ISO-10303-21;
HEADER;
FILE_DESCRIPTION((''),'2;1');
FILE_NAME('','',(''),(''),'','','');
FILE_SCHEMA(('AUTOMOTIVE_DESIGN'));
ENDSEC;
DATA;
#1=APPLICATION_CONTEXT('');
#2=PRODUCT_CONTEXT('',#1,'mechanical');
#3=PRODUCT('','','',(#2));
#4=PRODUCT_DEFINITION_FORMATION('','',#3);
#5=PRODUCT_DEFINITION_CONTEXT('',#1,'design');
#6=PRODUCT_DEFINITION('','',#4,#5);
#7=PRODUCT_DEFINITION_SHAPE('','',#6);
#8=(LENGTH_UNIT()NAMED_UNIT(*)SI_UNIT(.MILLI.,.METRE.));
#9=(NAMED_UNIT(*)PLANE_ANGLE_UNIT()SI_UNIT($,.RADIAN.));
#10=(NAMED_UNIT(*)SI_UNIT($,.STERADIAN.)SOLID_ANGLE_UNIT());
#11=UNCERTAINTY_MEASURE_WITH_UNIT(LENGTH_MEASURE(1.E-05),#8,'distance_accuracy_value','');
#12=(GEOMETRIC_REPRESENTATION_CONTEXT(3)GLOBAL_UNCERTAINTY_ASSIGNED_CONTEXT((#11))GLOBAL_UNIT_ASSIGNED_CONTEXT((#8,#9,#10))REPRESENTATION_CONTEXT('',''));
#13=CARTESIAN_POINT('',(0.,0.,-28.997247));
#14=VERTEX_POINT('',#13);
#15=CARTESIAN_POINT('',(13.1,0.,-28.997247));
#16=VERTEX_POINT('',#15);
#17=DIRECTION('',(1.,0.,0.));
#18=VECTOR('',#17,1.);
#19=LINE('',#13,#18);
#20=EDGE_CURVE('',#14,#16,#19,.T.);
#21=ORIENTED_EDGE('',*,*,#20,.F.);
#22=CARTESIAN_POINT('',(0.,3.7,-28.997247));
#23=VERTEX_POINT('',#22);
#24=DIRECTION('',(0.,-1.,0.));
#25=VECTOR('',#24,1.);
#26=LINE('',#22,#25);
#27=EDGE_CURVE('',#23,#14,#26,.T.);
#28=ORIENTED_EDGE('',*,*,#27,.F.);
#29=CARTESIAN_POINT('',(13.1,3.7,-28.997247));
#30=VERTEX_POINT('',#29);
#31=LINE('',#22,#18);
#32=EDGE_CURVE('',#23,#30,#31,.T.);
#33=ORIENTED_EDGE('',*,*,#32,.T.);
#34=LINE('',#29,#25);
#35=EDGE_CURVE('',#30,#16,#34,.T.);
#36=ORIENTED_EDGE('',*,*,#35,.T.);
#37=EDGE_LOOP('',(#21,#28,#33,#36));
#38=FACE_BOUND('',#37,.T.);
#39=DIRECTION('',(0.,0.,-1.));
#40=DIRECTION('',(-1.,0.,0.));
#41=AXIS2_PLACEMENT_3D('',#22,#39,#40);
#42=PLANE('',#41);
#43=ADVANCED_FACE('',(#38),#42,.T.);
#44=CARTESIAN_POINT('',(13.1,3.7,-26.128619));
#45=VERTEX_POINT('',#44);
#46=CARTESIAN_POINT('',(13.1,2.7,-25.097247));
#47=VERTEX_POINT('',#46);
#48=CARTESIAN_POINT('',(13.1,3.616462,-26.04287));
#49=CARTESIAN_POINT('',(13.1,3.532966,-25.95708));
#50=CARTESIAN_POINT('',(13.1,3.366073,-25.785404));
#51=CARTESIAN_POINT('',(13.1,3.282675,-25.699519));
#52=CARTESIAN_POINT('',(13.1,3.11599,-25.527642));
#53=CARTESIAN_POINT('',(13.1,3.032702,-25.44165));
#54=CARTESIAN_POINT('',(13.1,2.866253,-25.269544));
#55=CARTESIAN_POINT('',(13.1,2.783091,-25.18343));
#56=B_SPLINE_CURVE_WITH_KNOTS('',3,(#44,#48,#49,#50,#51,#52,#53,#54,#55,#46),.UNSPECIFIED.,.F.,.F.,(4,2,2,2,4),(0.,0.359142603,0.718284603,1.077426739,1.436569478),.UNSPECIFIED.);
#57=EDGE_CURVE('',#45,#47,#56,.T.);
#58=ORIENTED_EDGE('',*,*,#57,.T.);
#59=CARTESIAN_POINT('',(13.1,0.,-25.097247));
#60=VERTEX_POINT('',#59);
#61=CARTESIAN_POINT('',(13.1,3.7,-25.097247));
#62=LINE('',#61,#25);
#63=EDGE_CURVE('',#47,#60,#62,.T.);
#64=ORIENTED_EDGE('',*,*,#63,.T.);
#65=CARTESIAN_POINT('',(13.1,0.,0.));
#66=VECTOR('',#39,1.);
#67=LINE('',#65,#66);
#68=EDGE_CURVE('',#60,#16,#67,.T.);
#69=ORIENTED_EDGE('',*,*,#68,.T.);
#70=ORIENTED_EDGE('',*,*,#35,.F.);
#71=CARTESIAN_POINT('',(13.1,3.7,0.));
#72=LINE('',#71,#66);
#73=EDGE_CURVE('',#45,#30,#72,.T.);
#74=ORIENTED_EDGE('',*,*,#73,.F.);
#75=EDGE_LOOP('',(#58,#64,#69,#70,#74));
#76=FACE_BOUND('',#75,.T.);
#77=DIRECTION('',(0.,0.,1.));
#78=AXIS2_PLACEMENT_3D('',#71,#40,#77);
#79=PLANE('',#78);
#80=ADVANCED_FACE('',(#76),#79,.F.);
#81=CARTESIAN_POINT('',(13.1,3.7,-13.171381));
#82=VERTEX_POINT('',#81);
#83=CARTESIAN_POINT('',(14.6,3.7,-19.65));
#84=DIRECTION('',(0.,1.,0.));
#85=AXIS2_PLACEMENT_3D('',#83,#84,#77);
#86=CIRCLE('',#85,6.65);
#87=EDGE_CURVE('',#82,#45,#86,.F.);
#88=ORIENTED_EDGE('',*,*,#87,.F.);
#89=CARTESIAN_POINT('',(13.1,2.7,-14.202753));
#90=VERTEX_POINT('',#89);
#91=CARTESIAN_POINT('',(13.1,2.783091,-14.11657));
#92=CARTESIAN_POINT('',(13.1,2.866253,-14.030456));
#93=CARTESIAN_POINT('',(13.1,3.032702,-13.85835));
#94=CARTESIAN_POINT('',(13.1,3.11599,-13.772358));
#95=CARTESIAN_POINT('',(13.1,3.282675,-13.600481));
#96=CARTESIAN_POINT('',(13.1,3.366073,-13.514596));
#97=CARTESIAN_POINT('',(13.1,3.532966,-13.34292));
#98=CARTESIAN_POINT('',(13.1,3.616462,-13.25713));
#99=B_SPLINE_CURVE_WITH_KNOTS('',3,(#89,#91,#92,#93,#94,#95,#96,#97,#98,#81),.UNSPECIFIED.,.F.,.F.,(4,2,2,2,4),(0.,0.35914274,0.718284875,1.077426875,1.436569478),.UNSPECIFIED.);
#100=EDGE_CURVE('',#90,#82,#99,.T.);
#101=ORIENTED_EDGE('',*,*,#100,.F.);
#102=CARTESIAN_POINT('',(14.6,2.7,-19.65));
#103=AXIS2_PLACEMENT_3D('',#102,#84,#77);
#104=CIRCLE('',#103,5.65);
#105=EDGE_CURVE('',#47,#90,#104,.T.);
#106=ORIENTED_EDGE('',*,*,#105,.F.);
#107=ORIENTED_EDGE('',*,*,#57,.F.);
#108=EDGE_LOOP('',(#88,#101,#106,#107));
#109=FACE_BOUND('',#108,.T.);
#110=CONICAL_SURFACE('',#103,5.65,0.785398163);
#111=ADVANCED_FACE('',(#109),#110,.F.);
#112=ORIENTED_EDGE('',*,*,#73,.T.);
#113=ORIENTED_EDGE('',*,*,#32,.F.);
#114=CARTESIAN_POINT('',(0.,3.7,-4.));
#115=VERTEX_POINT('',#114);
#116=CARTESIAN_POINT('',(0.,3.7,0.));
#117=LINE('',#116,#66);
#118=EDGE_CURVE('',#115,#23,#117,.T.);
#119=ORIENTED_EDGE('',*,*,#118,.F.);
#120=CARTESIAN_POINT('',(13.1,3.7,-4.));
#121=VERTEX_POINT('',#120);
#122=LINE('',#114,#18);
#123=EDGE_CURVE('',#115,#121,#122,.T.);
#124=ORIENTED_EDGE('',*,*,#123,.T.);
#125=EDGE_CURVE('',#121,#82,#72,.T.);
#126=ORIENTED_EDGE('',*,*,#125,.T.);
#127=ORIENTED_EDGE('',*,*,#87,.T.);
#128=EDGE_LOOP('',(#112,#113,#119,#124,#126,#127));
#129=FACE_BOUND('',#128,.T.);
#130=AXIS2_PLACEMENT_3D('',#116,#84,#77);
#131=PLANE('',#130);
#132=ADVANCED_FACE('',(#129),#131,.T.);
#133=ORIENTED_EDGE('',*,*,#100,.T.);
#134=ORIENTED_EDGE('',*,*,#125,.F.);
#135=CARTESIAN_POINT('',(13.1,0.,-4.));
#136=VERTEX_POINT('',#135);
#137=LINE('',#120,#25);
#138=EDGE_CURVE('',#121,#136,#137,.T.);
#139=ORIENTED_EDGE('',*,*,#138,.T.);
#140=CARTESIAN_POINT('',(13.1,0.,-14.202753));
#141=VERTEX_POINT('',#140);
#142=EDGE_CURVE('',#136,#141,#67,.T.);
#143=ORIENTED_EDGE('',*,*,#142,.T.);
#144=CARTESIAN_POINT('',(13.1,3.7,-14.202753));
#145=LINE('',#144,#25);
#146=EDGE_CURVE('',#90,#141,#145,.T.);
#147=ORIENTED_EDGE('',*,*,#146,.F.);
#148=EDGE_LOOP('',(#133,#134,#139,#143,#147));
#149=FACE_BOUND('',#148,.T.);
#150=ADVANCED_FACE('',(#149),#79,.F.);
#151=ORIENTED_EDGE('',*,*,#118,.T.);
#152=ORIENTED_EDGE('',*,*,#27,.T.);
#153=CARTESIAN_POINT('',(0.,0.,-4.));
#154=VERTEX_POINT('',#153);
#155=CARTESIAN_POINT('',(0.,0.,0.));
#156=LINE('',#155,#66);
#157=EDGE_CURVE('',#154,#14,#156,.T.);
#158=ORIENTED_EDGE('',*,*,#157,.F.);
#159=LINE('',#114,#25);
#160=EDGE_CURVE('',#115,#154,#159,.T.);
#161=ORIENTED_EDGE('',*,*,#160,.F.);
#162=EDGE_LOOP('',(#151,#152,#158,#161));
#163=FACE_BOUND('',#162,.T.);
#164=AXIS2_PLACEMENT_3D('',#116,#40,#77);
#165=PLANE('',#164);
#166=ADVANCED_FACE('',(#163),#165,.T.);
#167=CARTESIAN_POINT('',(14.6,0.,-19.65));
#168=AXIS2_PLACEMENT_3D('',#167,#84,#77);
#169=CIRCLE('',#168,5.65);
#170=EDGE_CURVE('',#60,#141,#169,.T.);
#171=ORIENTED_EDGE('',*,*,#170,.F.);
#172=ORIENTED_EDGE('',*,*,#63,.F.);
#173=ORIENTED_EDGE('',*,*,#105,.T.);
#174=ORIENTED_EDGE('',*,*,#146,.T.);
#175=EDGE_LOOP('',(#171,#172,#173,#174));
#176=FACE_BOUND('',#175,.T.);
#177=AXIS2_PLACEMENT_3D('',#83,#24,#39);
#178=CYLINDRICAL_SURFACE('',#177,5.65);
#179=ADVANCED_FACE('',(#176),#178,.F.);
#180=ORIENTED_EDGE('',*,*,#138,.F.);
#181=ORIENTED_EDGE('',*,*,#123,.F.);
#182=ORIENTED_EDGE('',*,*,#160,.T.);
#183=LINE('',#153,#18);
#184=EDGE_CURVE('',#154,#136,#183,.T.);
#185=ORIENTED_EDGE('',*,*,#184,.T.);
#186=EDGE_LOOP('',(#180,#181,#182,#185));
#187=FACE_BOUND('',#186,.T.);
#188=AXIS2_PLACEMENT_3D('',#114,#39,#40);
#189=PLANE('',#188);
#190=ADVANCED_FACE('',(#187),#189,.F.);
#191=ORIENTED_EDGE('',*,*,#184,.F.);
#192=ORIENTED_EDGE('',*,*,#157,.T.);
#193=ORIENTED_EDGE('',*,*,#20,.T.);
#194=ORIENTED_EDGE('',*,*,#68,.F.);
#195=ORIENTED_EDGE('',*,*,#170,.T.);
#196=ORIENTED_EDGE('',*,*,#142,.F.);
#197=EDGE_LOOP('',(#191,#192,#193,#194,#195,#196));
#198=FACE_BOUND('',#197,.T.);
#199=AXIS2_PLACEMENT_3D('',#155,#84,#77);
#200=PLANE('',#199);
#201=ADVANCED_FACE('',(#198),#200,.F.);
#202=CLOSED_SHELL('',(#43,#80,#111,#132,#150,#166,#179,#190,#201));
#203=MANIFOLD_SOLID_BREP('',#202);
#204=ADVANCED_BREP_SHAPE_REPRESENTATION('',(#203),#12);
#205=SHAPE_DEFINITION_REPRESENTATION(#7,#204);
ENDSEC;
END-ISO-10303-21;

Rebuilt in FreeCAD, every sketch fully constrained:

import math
import FreeCAD as App
import Part
import Sketcher
Q = App.Units.Quantity


def edges_at(feature, points):
    """Names of the edges that pass closest to the given points."""
    edges = feature.Shape.Edges
    near = lambda p: min(range(len(edges)), key=lambda i: edges[i].distToShape(Part.Vertex(*p))[0])
    return sorted({f"Edge{near(p) + 1}" for p in points})

doc = App.newDocument("Part")
params = doc.addObject("Spreadsheet::Sheet", "Params")
for row, (alias, value) in enumerate([
    ("sketch1_radius", "5.65 mm"),
    ("sketch1_width", "13.1 mm"),
    ("sketch1_height", "3.9 mm"),
    ("pad1_length", "3.7 mm"),
    ("chamfer_size", "1 mm"),
], start=1):
    params.set(f"A{row}", alias)
    params.set(f"B{row}", "=" + value)
    params.setAlias(f"B{row}", alias)

body = doc.addObject("PartDesign::Body", "Body")

# Sketch on XZ plane
sketch1 = body.newObject("Sketcher::SketchObject", "Sketch")
sketch1.AttachmentSupport = (doc.getObject("XZ_Plane"), [""])
sketch1.MapMode = "FlatFace"
sketch1.addGeometry([
    Part.LineSegment(App.Vector(0, -29, 0), App.Vector(0, -4, 0)),  # 0
    Part.LineSegment(App.Vector(0, -4, 0), App.Vector(13.1, -4, 0)),  # 1
    Part.LineSegment(App.Vector(13.1, -4, 0), App.Vector(13.1, -14.2, 0)),  # 2
    Part.ArcOfCircle(Part.Circle(App.Vector(14.6, -19.6, 0), App.Vector(0, 0, 1), 5.7), math.radians(105), math.radians(255)),  # 3
    Part.LineSegment(App.Vector(13.1, -25.1, 0), App.Vector(13.1, -29, 0)),  # 4
    Part.LineSegment(App.Vector(13.1, -29, 0), App.Vector(0, -29, 0)),  # 5
], False)
sketch1.addConstraint([
    Sketcher.Constraint("Coincident", 0, 2, 1, 1),
    Sketcher.Constraint("Coincident", 1, 2, 2, 1),
    Sketcher.Constraint("Coincident", 2, 2, 3, 1),
    Sketcher.Constraint("Coincident", 3, 2, 4, 1),
    Sketcher.Constraint("Coincident", 4, 2, 5, 1),
    Sketcher.Constraint("Coincident", 5, 2, 0, 1),
    Sketcher.Constraint("Vertical", 0),
    Sketcher.Constraint("Horizontal", 1),
    Sketcher.Constraint("Vertical", 2),
    Sketcher.Constraint("Vertical", 4),
    Sketcher.Constraint("Horizontal", 5),
    Sketcher.Constraint("PointOnObject", 0, 2, -2),
    Sketcher.Constraint("Vertical", 2, 2, 3, 2),
    Sketcher.Constraint("Radius", 3, Q("5.65 mm")),
    Sketcher.Constraint("DistanceX", 1, 1, 1, 2, Q("13.1 mm")),
    Sketcher.Constraint("DistanceY", 4, 2, 4, 1, Q("3.9 mm")),
    Sketcher.Constraint("DistanceY", 0, 2, -1, 1, Q("4 mm")),
    Sketcher.Constraint("DistanceX", -1, 1, 3, 3, Q("14.6 mm")),
    Sketcher.Constraint("DistanceY", 3, 3, -1, 1, Q("19.65 mm")),
])
sketch1.setExpression("Constraints[13]", "Params.sketch1_radius")
sketch1.setExpression("Constraints[14]", "Params.sketch1_width")
sketch1.setExpression("Constraints[15]", "Params.sketch1_height")
pad1 = body.newObject("PartDesign::Pad", "Pad")
pad1.Profile = sketch1
pad1.setExpression("Length", "Params.pad1_length")
pad1.Reversed = True
doc.recompute()

chamfer = body.newObject("PartDesign::Chamfer", "Chamfer")
chamfer.Base = (pad1, edges_at(pad1, [(8.95, 3.7, -19.65)]))
chamfer.setExpression("Size", "Params.chamfer_size")

doc.recompute()
